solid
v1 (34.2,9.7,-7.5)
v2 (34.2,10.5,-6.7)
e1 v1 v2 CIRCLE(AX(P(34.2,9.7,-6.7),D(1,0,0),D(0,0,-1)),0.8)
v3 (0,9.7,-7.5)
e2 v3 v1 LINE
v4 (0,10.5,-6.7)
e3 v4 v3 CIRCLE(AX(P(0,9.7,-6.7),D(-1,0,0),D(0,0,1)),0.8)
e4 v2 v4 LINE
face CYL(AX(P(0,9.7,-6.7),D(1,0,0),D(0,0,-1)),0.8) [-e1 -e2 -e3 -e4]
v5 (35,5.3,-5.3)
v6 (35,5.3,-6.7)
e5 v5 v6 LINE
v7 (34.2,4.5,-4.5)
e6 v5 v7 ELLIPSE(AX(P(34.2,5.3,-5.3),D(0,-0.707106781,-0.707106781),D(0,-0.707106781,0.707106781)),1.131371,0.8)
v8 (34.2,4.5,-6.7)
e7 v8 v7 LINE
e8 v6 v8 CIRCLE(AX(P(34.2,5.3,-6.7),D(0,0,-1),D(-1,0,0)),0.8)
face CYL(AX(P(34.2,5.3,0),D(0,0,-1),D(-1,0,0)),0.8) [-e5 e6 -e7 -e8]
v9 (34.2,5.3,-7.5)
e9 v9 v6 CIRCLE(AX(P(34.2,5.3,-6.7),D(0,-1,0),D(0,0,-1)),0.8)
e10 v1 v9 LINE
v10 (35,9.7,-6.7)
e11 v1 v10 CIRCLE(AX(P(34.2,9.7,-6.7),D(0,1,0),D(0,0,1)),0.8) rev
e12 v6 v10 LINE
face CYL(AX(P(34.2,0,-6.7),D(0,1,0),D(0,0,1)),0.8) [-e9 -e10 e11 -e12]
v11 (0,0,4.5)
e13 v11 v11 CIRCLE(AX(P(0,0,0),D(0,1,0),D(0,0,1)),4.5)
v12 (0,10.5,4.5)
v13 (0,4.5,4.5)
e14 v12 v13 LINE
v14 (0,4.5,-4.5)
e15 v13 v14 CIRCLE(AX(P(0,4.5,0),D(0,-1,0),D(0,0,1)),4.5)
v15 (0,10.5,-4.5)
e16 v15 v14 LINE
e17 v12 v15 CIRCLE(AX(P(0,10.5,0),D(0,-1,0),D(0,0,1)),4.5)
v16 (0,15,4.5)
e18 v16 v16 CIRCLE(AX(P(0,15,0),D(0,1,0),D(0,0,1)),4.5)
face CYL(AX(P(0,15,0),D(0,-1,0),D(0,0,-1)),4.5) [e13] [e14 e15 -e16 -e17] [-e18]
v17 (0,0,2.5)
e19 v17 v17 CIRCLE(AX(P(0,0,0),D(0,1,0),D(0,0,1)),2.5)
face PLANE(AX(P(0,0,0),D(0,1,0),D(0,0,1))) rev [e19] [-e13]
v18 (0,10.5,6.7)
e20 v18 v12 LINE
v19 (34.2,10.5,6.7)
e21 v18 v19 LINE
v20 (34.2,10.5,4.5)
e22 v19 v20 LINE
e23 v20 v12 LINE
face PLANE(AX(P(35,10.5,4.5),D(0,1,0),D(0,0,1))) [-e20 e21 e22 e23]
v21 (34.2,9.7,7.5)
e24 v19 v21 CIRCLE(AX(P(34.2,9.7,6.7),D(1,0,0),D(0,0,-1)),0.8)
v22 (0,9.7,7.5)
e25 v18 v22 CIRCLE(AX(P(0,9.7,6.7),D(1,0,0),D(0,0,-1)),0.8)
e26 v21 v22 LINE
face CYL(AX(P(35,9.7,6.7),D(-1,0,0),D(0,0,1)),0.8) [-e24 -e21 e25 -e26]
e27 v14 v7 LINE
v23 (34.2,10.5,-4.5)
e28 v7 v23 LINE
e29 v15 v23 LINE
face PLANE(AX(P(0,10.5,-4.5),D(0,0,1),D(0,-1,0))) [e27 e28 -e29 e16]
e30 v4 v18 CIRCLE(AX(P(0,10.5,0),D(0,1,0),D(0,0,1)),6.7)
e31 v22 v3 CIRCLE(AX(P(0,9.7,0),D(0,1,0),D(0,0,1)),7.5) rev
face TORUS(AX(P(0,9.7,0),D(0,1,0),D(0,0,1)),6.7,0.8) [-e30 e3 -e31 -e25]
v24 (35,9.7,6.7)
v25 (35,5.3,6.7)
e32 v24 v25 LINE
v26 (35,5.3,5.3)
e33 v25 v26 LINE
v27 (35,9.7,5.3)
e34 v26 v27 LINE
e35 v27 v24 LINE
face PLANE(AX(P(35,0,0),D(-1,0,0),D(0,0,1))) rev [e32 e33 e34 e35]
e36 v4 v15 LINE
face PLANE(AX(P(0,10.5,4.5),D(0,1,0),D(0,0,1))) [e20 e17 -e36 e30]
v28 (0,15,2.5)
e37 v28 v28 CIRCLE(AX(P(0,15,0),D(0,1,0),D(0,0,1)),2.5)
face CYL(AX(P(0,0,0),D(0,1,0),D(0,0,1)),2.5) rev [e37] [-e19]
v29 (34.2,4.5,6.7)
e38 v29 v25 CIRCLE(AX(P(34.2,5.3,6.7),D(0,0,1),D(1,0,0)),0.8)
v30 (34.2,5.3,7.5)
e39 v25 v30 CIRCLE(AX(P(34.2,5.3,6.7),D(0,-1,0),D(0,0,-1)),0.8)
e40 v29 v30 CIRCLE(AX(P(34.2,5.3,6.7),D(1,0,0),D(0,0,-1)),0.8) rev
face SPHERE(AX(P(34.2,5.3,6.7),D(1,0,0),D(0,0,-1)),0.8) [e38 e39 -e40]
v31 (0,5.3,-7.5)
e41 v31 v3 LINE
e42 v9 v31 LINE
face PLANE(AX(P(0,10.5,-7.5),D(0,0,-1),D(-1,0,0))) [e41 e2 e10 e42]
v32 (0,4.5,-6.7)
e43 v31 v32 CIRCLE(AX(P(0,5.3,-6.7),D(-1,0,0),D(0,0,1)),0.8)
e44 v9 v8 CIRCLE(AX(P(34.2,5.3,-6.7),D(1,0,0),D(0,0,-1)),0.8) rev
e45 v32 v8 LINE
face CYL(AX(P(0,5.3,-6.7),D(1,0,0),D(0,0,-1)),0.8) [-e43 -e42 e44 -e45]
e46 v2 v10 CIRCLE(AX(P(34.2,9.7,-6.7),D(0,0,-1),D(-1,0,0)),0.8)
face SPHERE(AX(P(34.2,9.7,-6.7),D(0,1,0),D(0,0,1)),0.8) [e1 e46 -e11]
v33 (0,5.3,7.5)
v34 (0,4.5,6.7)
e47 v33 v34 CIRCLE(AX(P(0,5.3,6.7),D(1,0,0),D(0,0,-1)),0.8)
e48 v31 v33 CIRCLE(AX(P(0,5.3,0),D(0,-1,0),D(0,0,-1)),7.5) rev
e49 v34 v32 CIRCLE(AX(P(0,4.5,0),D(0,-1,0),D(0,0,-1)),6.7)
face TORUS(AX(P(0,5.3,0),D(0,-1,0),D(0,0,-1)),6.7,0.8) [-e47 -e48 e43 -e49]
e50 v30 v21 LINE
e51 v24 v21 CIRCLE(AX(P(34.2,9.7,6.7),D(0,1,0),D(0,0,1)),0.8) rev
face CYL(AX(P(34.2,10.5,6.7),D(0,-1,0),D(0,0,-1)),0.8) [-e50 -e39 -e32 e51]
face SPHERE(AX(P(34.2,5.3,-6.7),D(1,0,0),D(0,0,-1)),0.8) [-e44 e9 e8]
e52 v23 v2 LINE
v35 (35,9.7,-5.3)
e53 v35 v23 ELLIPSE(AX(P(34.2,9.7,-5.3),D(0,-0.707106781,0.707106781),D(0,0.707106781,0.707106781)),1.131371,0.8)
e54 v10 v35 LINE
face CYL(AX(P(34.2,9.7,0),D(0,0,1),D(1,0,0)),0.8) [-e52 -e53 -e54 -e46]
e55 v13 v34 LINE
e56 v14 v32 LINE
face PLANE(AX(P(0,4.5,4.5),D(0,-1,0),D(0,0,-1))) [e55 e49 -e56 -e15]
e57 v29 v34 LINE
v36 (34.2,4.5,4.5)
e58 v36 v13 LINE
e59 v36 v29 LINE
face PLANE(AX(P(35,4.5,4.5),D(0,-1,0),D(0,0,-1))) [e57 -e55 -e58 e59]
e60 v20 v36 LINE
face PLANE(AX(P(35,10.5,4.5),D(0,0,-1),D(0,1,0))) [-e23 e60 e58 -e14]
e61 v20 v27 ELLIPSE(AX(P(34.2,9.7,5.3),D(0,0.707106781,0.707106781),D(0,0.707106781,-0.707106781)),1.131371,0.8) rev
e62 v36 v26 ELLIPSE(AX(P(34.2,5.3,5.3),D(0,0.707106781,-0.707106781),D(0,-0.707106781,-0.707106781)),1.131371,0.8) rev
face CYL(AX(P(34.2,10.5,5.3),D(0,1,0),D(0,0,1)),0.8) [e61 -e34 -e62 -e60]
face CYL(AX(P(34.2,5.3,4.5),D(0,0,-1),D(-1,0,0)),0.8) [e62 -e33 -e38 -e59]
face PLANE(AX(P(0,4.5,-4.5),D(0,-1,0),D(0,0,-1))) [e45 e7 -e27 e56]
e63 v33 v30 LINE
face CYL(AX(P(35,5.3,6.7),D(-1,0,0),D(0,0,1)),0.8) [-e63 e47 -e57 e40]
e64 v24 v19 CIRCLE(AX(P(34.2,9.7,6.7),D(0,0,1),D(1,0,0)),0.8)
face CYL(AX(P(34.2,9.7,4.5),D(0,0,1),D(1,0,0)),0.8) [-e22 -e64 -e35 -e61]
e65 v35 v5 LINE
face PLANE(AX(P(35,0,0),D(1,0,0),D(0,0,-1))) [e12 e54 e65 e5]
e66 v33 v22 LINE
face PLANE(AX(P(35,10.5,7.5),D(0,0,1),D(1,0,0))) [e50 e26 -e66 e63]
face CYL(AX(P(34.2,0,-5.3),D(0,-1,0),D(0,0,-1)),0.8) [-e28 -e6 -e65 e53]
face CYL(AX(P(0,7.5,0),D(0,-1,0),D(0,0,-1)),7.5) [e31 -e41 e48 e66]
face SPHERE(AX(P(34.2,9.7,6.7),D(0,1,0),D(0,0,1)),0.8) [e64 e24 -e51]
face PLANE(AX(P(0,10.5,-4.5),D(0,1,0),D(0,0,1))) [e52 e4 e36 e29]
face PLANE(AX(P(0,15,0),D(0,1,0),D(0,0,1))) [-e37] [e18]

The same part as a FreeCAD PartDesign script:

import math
import FreeCAD as App
import Part
import Sketcher
from FreeCAD import Vector
Q = App.Units.Quantity


def edges_at(feature, points):
    """Names of the edges that pass closest to the given points."""
    edges = feature.Shape.Edges
    near = lambda p: min(range(len(edges)), key=lambda i: edges[i].distToShape(Part.Vertex(*p))[0])
    return sorted({f"Edge{near(p) + 1}" for p in points})

doc = App.newDocument("Part")
params = doc.addObject("Spreadsheet::Sheet", "Params")
for row, (alias, value) in enumerate([
    ("sketch1_diameter", "9 mm"),
    ("pad1_length", "15 mm"),
    ("sketch2_diameter", "5 mm"),
    ("sketch3_width", "6 mm"),
    ("sketch3_height", "3 mm"),
    ("sketch4_radius", "6 mm"),
    ("sketch4_width", "35 mm"),
    ("fillet_radius", "0.8 mm"),
], start=1):
    params.set(f"A{row}", alias)
    params.set(f"B{row}", "=" + value)
    params.setAlias(f"B{row}", alias)

body = doc.addObject("PartDesign::Body", "Body")

sketch1 = body.newObject("Sketcher::SketchObject", "Sketch")
sketch1.AttachmentSupport = (doc.getObject("XZ_Plane"), [""])
sketch1.MapMode = "FlatFace"
sketch1.addGeometry(Part.Circle(Vector(0, 0, 0), Vector(0, 0, 1), 4.5), False)
sketch1.addConstraint([
    Sketcher.Constraint("Coincident", 0, 3, -1, 1),
    Sketcher.Constraint("Diameter", 0, Q("9 mm")),
])
sketch1.setExpression("Constraints[1]", "Params.sketch1_diameter")
pad1 = body.newObject("PartDesign::Pad", "Pad")
pad1.Profile = sketch1
pad1.setExpression("Length", "Params.pad1_length")
pad1.Reversed = True

sketch2 = body.newObject("Sketcher::SketchObject", "Sketch001")
sketch2.AttachmentSupport = (doc.getObject("XZ_Plane"), [""])
sketch2.MapMode = "FlatFace"
sketch2.AttachmentOffset = App.Placement(Vector(0, 0, -15), App.Rotation())
sketch2.addGeometry(Part.Circle(Vector(0, 0, 0), Vector(0, 0, 1), 2.5), False)
sketch2.addConstraint([
    Sketcher.Constraint("Coincident", 0, 3, -1, 1),
    Sketcher.Constraint("Diameter", 0, Q("5 mm")),
])
sketch2.setExpression("Constraints[1]", "Params.sketch2_diameter")
pocket1 = body.newObject("PartDesign::Pocket", "Pocket")
pocket1.Profile = sketch2
pocket1.Type = "ThroughAll"
pocket1.Reversed = True

sketch3 = body.newObject("Sketcher::SketchObject", "Sketch002")
sketch3.AttachmentSupport = (doc.getObject("YZ_Plane"), [""])
sketch3.MapMode = "FlatFace"
sketch3.AttachmentOffset = App.Placement(Vector(0, 0, 35), App.Rotation())
sketch3.addGeometry([
    Part.LineSegment(Vector(10.5, -4.5, 0), Vector(4.5, -4.5, 0)),
    Part.LineSegment(Vector(4.5, -4.5, 0), Vector(4.5, -7.5, 0)),
    Part.LineSegment(Vector(4.5, -7.5, 0), Vector(10.5, -7.5, 0)),
    Part.LineSegment(Vector(10.5, -7.5, 0), Vector(10.5, -4.5, 0)),
], False)
sketch3.addConstraint([
    Sketcher.Constraint("Coincident", 0, 2, 1, 1),
    Sketcher.Constraint("Coincident", 1, 2, 2, 1),
    Sketcher.Constraint("Coincident", 2, 2, 3, 1),
    Sketcher.Constraint("Coincident", 3, 2, 0, 1),
    Sketcher.Constraint("Horizontal", 0),
    Sketcher.Constraint("Vertical", 1),
    Sketcher.Constraint("Horizontal", 2),
    Sketcher.Constraint("Vertical", 3),
    Sketcher.Constraint("DistanceX", 0, 2, 0, 1, Q("6 mm")),
    Sketcher.Constraint("DistanceY", 1, 2, 1, 1, Q("3 mm")),
    Sketcher.Constraint("DistanceX", -1, 1, 0, 2, Q("4.5 mm")),
    Sketcher.Constraint("DistanceY", 0, 2, -1, 1, Q("4.5 mm")),
])
sketch3.setExpression("Constraints[8]", "Params.sketch3_width")
sketch3.setExpression("Constraints[9]", "Params.sketch3_height")

sketch4 = body.newObject("Sketcher::SketchObject", "Sketch003")
sketch4.AttachmentSupport = (doc.getObject("XZ_Plane"), [""])
sketch4.MapMode = "FlatFace"
sketch4.AttachmentOffset = App.Placement(Vector(0, 0, -7.5), App.Rotation())
sketch4.addGeometry([
    Part.LineSegment(Vector(35, -6, 0), Vector(0, -6, 0)),
    Part.ArcOfCircle(Part.Circle(Vector(0, 0, 0), Vector(0, 0, 1), 6), math.radians(90), math.radians(270)),
    Part.LineSegment(Vector(0, 6, 0), Vector(35, 6, 0)),
], False)
sketch4.addConstraint([
    Sketcher.Constraint("Tangent", 0, 2, 1, 2),
    Sketcher.Constraint("Tangent", 1, 1, 2, 1),
    Sketcher.Constraint("Horizontal", 0),
    Sketcher.Constraint("Horizontal", 2),
    Sketcher.Constraint("Coincident", 1, 3, -1, 1),
    Sketcher.Constraint("Vertical", 0, 1, 2, 2),
    Sketcher.Constraint("Radius", 1, Q("6 mm")),
    Sketcher.Constraint("DistanceX", 0, 2, 0, 1, Q("35 mm")),
])
sketch4.setExpression("Constraints[6]", "Params.sketch4_radius")
sketch4.setExpression("Constraints[7]", "Params.sketch4_width")
doc.recompute()

additivepipe = body.newObject("PartDesign::AdditivePipe", "AdditivePipe")
additivepipe.Profile = sketch3
additivepipe.Spine = (sketch4, ["Edge1", "Edge2", "Edge3"])
doc.recompute()

fillet = body.newObject("PartDesign::Fillet", "Fillet")
fillet.Base = (additivepipe, edges_at(additivepipe, [
    (35, 7.5, -7.5),
    (35, 10.5, -6),
    (35, 7.5, -4.5),
    (35, 4.5, -6),
    (35, 7.5, 4.5),
    (17.5, 4.5, 7.5),
    (35, 4.5, 6),
    (17.5, 10.5, 7.5),
    (35, 7.5, 7.5),
    (35, 10.5, 6),
    (-7.5, 4.5, 0),
    (-7.5, 10.5, 0),
    (17.5, 4.5, -7.5),
    (17.5, 10.5, -7.5),
]))
fillet.setExpression("Radius", "Params.fillet_radius")

doc.recompute()
